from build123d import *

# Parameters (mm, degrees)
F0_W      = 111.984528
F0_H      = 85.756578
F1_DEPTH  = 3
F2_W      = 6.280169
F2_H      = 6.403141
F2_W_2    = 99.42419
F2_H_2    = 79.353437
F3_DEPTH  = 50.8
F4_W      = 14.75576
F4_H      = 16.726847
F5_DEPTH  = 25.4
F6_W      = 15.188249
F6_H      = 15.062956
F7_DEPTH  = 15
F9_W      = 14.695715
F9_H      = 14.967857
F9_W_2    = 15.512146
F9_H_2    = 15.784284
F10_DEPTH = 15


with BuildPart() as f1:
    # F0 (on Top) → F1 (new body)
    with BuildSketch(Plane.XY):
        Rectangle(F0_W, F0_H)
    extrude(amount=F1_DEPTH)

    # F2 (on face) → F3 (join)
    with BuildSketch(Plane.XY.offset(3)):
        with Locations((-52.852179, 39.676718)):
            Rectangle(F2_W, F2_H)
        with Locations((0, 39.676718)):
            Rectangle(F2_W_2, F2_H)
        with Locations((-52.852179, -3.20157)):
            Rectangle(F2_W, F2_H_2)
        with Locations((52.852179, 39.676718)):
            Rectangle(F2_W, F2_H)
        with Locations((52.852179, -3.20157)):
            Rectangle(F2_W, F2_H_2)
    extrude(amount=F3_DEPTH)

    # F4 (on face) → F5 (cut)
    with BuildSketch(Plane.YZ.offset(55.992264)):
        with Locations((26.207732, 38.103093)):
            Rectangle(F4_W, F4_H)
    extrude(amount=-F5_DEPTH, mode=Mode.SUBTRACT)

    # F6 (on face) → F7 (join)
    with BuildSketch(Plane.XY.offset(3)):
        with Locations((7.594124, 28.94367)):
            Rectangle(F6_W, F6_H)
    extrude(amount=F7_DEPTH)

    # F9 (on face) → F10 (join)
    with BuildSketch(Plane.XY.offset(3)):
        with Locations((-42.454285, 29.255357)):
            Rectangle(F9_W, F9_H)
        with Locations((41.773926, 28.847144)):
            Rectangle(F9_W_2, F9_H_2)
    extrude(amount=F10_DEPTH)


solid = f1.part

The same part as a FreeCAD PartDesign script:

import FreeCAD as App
import Part
import Sketcher

V = App.Vector


def add_polygon(sketch, points):
    """Adds a closed chain of lines whose ends are joined by coincident constraints."""
    first, n = sketch.GeometryCount, len(points)
    for a, b in zip(points, points[1:] + points[:1]):
        sketch.addGeometry(Part.LineSegment(App.Vector(*a, 0), App.Vector(*b, 0)), False)
    for i in range(n):
        sketch.addConstraint(Sketcher.Constraint("Coincident", first + i, 2, first + (i + 1) % n, 1))

doc = App.newDocument("Part")
params = doc.addObject("Spreadsheet::Sheet", "Params")
for row, (alias, value) in enumerate([
    ("pad1_length", "3 mm"),
    ("pad2_length", "50.8 mm"),
    ("pocket1_length", "25.4 mm"),
    ("pad3_length", "15 mm"),
    ("pad4_length", "15 mm"),
], start=1):
    params.set(f"A{row}", alias)
    params.set(f"B{row}", "=" + value)
    params.setAlias(f"B{row}", alias)

body = doc.addObject("PartDesign::Body", "Body")

# Sketch on XY plane
sketch1 = doc.addObject("Sketcher::SketchObject", "Sketch")
body.addObject(sketch1)
sketch1.AttachmentSupport = (doc.XY_Plane, [""])
sketch1.MapMode = "FlatFace"
add_polygon(sketch1, [(-56, 43), (-56, -43), (56, -43), (56, 43)])  # lines 0-3
sketch1.addConstraint([
    Sketcher.Constraint("Vertical", 0),
    Sketcher.Constraint("Horizontal", 1),
    Sketcher.Constraint("Vertical", 2),
    Sketcher.Constraint("Horizontal", 3),
    Sketcher.Constraint("Symmetric", 0, 2, 2, 2, -1, 1),
    Sketcher.Constraint("DistanceY", 0, 2, 0, 1, 85.756578),
    Sketcher.Constraint("DistanceX", 1, 1, 1, 2, 111.984528),
])
pad1 = doc.addObject("PartDesign::Pad", "Pad")
body.addObject(pad1)
pad1.Profile = sketch1
pad1.setExpression("Length", "Params.pad1_length")

# Sketch on XY plane
sketch2 = doc.addObject("Sketcher::SketchObject", "Sketch001")
body.addObject(sketch2)
sketch2.AttachmentSupport = (doc.XY_Plane, [""])
sketch2.MapMode = "FlatFace"
sketch2.AttachmentOffset = App.Placement(V(0, 0, 3), App.Rotation())
add_polygon(sketch2, [(56, 43), (-56, 43), (-56, -43), (-50, -43), (-50, 36), (50, 36), (50, -43), (56, -43)])  # lines 0-7
sketch2.addConstraint([
    Sketcher.Constraint("Horizontal", 0),
    Sketcher.Constraint("Vertical", 1),
    Sketcher.Constraint("Horizontal", 2),
    Sketcher.Constraint("Vertical", 3),
    Sketcher.Constraint("Horizontal", 4),
    Sketcher.Constraint("Vertical", 5),
    Sketcher.Constraint("Horizontal", 6),
    Sketcher.Constraint("Vertical", 7),
    Sketcher.Constraint("Symmetric", 0, 2, 6, 2, -1, 1),
    Sketcher.Constraint("Symmetric", 2, 2, 5, 2, -2),
    Sketcher.Constraint("DistanceX", 2, 1, 2, 2, 6.280169),
    Sketcher.Constraint("DistanceX", 4, 1, 4, 2, 99.424189),
    Sketcher.Constraint("DistanceY", 1, 2, 1, 1, 85.756577),
    Sketcher.Constraint("DistanceY", 3, 1, 3, 2, 79.353436),
])
pad2 = doc.addObject("PartDesign::Pad", "Pad001")
body.addObject(pad2)
pad2.Profile = sketch2
pad2.setExpression("Length", "Params.pad2_length")

# Sketch on YZ plane
sketch3 = doc.addObject("Sketcher::SketchObject", "Sketch002")
body.addObject(sketch3)
sketch3.AttachmentSupport = (doc.YZ_Plane, [""])
sketch3.MapMode = "FlatFace"
sketch3.AttachmentOffset = App.Placement(V(0, 0, 55.992264), App.Rotation())
add_polygon(sketch3, [(19, 46), (19, 30), (34, 30), (34, 46)])  # lines 0-3
sketch3.addConstraint([
    Sketcher.Constraint("Vertical", 0),
    Sketcher.Constraint("Horizontal", 1),
    Sketcher.Constraint("Vertical", 2),
    Sketcher.Constraint("Horizontal", 3),
    Sketcher.Constraint("DistanceX", 1, 1, 1, 2, 14.75576),
    Sketcher.Constraint("DistanceY", 0, 2, 0, 1, 16.726847),
    Sketcher.Constraint("DistanceX", -1, 1, 0, 2, 18.829852),
    Sketcher.Constraint("DistanceY", -1, 1, 0, 2, 29.73967),
])
pocket1 = doc.addObject("PartDesign::Pocket", "Pocket")
body.addObject(pocket1)
pocket1.Profile = sketch3
pocket1.setExpression("Length", "Params.pocket1_length")

# Sketch on XY plane
sketch4 = doc.addObject("Sketcher::SketchObject", "Sketch003")
body.addObject(sketch4)
sketch4.AttachmentSupport = (doc.XY_Plane, [""])
sketch4.MapMode = "FlatFace"
sketch4.AttachmentOffset = App.Placement(V(0, 0, 3), App.Rotation())
add_polygon(sketch4, [(0, 36), (0, 21), (15, 21), (15, 36)])  # lines 0-3
sketch4.addConstraint([
    Sketcher.Constraint("Vertical", 0),
    Sketcher.Constraint("Horizontal", 1),
    Sketcher.Constraint("Vertical", 2),
    Sketcher.Constraint("Horizontal", 3),
    Sketcher.Constraint("PointOnObject", 0, 2, -2),
    Sketcher.Constraint("DistanceX", 1, 1, 1, 2, 15.188249),
    Sketcher.Constraint("DistanceY", 0, 2, 0, 1, 15.062956),
    Sketcher.Constraint("DistanceY", -1, 1, 0, 2, 21.412192),
])
pad3 = doc.addObject("PartDesign::Pad", "Pad002")
body.addObject(pad3)
pad3.Profile = sketch4
pad3.setExpression("Length", "Params.pad3_length")

# Sketch on XY plane
sketch5 = doc.addObject("Sketcher::SketchObject", "Sketch004")
body.addObject(sketch5)
sketch5.AttachmentSupport = (doc.XY_Plane, [""])
sketch5.MapMode = "FlatFace"
sketch5.AttachmentOffset = App.Placement(V(0, 0, 3), App.Rotation())
add_polygon(sketch5, [(-50, 37), (-50, 22), (-35, 22), (-35, 37)])  # lines 0-3
add_polygon(sketch5, [(34, 37), (34, 21), (50, 21), (50, 37)])  # lines 4-7
sketch5.addConstraint([
    Sketcher.Constraint("Vertical", 0),
    Sketcher.Constraint("Horizontal", 1),
    Sketcher.Constraint("Vertical", 2),
    Sketcher.Constraint("Horizontal", 3),
    Sketcher.Constraint("Vertical", 4),
    Sketcher.Constraint("Horizontal", 5),
    Sketcher.Constraint("Vertical", 6),
    Sketcher.Constraint("Horizontal", 7),
    Sketcher.Constraint("Horizontal", 3, 2, 6, 2),
    Sketcher.Constraint("DistanceX", -1, 1, 5, 2, 49.529999),
    Sketcher.Constraint("DistanceX", 1, 1, 1, 2, 14.695715),
    Sketcher.Constraint("DistanceX", 5, 1, 5, 2, 15.512146),
    Sketcher.Constraint("DistanceY", 0, 2, 0, 1, 14.967857),
    Sketcher.Constraint("DistanceY", 4, 2, 4, 1, 15.784284),
    Sketcher.Constraint("DistanceY", -1, 1, 0, 2, 21.771428),
    Sketcher.Constraint("DistanceX", 1, 2, 4, 2, 69.12428),
])
pad4 = doc.addObject("PartDesign::Pad", "Pad003")
body.addObject(pad4)
pad4.Profile = sketch5
pad4.setExpression("Length", "Params.pad4_length")

doc.recompute()
